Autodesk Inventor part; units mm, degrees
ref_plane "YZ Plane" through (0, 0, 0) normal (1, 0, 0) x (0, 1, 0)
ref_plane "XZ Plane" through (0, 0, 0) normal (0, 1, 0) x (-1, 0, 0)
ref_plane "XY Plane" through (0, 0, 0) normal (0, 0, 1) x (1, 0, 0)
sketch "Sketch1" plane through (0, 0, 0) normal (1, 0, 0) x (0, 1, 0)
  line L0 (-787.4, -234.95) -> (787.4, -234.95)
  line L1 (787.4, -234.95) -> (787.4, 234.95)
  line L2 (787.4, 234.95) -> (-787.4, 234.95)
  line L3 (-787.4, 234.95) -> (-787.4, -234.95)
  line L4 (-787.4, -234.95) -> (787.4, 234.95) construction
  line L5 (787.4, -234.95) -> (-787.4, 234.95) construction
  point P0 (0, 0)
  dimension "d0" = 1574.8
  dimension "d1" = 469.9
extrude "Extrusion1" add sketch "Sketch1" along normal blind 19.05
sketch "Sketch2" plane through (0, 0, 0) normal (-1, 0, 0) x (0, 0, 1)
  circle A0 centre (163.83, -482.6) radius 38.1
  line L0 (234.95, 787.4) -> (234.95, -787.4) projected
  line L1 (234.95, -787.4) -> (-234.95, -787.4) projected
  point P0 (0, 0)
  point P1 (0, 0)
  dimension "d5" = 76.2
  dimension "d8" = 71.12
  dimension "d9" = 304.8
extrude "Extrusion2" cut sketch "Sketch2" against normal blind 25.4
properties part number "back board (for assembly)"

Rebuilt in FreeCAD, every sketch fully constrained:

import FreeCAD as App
import Part
import Sketcher
Q = App.Units.Quantity

doc = App.newDocument("Part")
body = doc.addObject("PartDesign::Body", "Body")

# Sketch on YZ plane
sketch1 = body.newObject("Sketcher::SketchObject", "Sketch")
sketch1.AttachmentSupport = (doc.getObject("YZ_Plane"), [""])
sketch1.MapMode = "FlatFace"
sketch1.addGeometry([
    Part.LineSegment(App.Vector(-787, 235, 0), App.Vector(-787, -235, 0)),
    Part.LineSegment(App.Vector(-787, -235, 0), App.Vector(787, -235, 0)),
    Part.LineSegment(App.Vector(787, -235, 0), App.Vector(787, 235, 0)),
    Part.LineSegment(App.Vector(787, 235, 0), App.Vector(-787, 235, 0)),
], False)
sketch1.addConstraint([
    Sketcher.Constraint("Coincident", 0, 2, 1, 1),
    Sketcher.Constraint("Coincident", 1, 2, 2, 1),
    Sketcher.Constraint("Coincident", 2, 2, 3, 1),
    Sketcher.Constraint("Coincident", 3, 2, 0, 1),
    Sketcher.Constraint("Vertical", 0),
    Sketcher.Constraint("Horizontal", 1),
    Sketcher.Constraint("Vertical", 2),
    Sketcher.Constraint("Horizontal", 3),
    Sketcher.Constraint("Symmetric", 0, 2, 2, 2, -1, 1),
    Sketcher.Constraint("DistanceX", 1, 1, 1, 2, Q("62 in")),
    Sketcher.Constraint("DistanceY", 0, 2, 0, 1, Q("18.5 in")),
])
pad1 = body.newObject("PartDesign::Pad", "Pad")
pad1.Profile = sketch1
pad1.Length = Q("0.75 in")

# Sketch on YZ plane
sketch2 = body.newObject("Sketcher::SketchObject", "Sketch001")
sketch2.AttachmentSupport = (doc.getObject("YZ_Plane"), [""])
sketch2.MapMode = "FlatFace"
sketch2.addGeometry(Part.Circle(App.Vector(-483, 164, 0), App.Vector(0, 0, 1), 38), False)
sketch2.addConstraint([
    Sketcher.Constraint("Diameter", 0, Q("3 in")),
    Sketcher.Constraint("DistanceX", 0, 3, -1, 1, Q("19 in")),
    Sketcher.Constraint("DistanceY", -1, 1, 0, 3, Q("6.45 in")),
])
pocket1 = body.newObject("PartDesign::Pocket", "Pocket")
pocket1.Profile = sketch2
pocket1.Length = Q("1 in")
pocket1.Reversed = True

doc.recompute()
